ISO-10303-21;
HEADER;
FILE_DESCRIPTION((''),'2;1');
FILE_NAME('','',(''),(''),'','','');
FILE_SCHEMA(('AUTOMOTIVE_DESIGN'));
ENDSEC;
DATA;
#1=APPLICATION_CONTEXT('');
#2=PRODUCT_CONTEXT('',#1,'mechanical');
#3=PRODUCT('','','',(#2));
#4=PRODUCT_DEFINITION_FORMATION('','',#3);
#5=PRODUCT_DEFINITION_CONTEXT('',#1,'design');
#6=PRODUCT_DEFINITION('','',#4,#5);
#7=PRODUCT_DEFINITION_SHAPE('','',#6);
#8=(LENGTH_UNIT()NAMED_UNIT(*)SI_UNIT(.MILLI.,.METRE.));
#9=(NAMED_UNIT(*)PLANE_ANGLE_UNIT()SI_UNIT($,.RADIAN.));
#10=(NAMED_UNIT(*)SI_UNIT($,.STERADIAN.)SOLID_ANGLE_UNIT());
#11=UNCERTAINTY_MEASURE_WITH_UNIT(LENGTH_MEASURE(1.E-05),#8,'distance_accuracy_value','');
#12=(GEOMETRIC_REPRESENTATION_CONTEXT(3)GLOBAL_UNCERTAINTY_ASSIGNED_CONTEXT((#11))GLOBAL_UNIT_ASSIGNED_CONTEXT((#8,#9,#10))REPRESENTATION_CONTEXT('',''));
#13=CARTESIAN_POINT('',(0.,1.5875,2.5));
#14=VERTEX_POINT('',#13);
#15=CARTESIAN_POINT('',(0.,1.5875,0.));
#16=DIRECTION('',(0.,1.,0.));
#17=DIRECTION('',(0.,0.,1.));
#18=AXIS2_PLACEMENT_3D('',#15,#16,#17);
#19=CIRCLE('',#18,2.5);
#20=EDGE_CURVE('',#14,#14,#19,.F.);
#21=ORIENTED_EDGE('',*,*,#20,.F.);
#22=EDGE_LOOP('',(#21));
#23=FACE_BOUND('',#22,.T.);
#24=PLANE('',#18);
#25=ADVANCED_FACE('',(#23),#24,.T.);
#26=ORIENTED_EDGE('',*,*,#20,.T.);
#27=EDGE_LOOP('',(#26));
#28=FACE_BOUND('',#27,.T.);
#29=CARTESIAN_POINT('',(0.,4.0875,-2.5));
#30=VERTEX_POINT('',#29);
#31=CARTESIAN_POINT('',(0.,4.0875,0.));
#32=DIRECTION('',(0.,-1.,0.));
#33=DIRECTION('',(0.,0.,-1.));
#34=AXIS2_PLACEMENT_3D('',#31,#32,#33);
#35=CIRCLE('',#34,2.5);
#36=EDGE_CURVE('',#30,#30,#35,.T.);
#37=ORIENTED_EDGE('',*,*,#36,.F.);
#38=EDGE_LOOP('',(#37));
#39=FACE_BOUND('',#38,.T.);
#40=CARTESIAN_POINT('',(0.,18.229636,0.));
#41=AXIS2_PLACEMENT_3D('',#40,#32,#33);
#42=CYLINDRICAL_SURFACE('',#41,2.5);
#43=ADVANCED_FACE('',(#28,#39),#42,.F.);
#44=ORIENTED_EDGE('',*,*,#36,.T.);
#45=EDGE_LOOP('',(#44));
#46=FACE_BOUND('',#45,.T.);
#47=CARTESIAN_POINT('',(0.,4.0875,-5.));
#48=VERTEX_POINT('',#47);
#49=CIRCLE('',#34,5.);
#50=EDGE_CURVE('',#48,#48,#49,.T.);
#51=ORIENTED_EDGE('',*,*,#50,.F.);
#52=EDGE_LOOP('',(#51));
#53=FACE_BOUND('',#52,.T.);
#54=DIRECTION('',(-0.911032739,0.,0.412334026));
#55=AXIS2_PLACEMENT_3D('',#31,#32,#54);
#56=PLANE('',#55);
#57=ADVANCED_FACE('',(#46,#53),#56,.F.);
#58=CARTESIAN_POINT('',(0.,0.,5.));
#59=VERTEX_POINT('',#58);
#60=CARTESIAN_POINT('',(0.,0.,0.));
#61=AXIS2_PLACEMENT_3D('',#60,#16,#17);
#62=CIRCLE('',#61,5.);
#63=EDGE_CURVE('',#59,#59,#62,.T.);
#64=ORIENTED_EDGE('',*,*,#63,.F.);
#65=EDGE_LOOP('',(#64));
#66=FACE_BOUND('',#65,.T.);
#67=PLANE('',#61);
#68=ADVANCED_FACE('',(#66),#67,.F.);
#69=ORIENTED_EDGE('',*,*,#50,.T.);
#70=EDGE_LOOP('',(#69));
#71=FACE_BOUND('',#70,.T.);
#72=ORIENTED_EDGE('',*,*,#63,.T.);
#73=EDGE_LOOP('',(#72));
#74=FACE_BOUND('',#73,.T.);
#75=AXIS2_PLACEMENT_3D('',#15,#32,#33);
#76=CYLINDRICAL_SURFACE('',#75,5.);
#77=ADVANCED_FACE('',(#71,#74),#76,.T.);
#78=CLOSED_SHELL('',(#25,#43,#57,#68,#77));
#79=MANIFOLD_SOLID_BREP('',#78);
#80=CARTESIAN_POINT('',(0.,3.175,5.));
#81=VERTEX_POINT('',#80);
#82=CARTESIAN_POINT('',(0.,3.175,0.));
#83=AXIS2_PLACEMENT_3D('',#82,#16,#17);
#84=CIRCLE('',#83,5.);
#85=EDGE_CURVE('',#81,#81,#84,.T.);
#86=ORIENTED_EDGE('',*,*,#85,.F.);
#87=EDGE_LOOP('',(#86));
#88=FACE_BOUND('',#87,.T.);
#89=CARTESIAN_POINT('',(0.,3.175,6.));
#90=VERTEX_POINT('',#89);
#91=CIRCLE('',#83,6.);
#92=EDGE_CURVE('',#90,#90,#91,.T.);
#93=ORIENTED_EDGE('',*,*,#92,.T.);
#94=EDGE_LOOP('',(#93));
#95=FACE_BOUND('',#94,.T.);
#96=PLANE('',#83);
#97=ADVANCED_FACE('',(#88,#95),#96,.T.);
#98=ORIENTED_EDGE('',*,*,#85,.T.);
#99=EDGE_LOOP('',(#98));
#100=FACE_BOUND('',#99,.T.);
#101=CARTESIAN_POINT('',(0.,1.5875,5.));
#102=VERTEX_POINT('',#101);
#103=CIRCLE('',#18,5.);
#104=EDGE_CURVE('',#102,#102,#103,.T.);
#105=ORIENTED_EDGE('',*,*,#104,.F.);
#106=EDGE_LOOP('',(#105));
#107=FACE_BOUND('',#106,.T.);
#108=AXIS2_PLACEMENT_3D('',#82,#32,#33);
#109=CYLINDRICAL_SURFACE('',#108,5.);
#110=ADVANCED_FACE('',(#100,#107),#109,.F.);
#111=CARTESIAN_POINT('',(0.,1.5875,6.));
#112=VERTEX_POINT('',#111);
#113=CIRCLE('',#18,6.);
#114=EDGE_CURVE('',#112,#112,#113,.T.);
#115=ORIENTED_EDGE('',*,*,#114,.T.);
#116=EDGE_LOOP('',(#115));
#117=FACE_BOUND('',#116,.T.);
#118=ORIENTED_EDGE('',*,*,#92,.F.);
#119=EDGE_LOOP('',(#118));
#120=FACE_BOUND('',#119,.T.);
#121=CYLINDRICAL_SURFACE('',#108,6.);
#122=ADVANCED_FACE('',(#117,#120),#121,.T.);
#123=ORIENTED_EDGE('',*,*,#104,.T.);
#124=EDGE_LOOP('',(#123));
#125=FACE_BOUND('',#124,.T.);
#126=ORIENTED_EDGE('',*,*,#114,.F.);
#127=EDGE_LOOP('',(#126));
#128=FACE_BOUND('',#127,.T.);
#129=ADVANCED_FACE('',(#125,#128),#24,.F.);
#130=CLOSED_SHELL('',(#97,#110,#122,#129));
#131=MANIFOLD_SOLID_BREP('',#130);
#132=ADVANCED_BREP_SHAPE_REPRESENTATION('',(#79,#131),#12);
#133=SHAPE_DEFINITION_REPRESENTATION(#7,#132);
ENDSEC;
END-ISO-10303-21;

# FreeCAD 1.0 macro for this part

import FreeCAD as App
import Part
import Sketcher

V = App.Vector

doc = App.newDocument("Part")
body = doc.addObject("PartDesign::Body", "Body")

sketch1 = body.newObject("Sketcher::SketchObject", "Sketch")
sketch1.AttachmentSupport = (doc.getObject("XZ_Plane"), [""])
sketch1.MapMode = "FlatFace"
sketch1.addGeometry(Part.Circle(V(0, 0, 0), V(0, 0, 1), 5), False)
sketch1.addConstraint([
    Sketcher.Constraint("Coincident", 0, 3, -1, 1),
    Sketcher.Constraint("Diameter", 0, 10.0),
])
pad1 = body.newObject("PartDesign::Pad", "Pad")
pad1.Profile = sketch1
pad1.Length = 1.5875
pad1.Reversed = True

sketch2 = body.newObject("Sketcher::SketchObject", "Sketch001")
sketch2.AttachmentSupport = (doc.getObject("XZ_Plane"), [""])
sketch2.MapMode = "FlatFace"
sketch2.AttachmentOffset = App.Placement(V(0, 0, -1.5875), App.Rotation())
sketch2.addGeometry([
    Part.Circle(V(0, 0, 0), V(0, 0, 1), 5),
    Part.Circle(V(0, 0, 0), V(0, 0, 1), 2.5),
], False)
sketch2.addConstraint([
    Sketcher.Constraint("Coincident", 0, 3, -1, 1),
    Sketcher.Constraint("Coincident", 1, 3, -1, 1),
    Sketcher.Constraint("Diameter", 0, 10.0),
    Sketcher.Constraint("Diameter", 1, 5.0),
])
pad2 = body.newObject("PartDesign::Pad", "Pad001")
pad2.Profile = sketch2
pad2.Length = 2.5
pad2.Reversed = True
body2 = doc.addObject("PartDesign::Body", "Body001")

sketch3 = body2.newObject("Sketcher::SketchObject", "Sketch002")
sketch3.AttachmentSupport = (doc.getObject("XZ_Plane001"), [""])
sketch3.MapMode = "FlatFace"
sketch3.AttachmentOffset = App.Placement(V(0, 0, -1.5875), App.Rotation())
sketch3.addGeometry([
    Part.Circle(V(0, 0, 0), V(0, 0, 1), 6),
    Part.Circle(V(0, 0, 0), V(0, 0, 1), 5),
], False)
sketch3.addConstraint([
    Sketcher.Constraint("Coincident", 0, 3, -1, 1),
    Sketcher.Constraint("Coincident", 1, 3, -1, 1),
    Sketcher.Constraint("Diameter", 0, 12.0),
    Sketcher.Constraint("Diameter", 1, 10.0),
])
pad3 = body2.newObject("PartDesign::Pad", "Pad002")
pad3.Profile = sketch3
pad3.Length = 1.5875
pad3.Reversed = True

doc.recompute()
